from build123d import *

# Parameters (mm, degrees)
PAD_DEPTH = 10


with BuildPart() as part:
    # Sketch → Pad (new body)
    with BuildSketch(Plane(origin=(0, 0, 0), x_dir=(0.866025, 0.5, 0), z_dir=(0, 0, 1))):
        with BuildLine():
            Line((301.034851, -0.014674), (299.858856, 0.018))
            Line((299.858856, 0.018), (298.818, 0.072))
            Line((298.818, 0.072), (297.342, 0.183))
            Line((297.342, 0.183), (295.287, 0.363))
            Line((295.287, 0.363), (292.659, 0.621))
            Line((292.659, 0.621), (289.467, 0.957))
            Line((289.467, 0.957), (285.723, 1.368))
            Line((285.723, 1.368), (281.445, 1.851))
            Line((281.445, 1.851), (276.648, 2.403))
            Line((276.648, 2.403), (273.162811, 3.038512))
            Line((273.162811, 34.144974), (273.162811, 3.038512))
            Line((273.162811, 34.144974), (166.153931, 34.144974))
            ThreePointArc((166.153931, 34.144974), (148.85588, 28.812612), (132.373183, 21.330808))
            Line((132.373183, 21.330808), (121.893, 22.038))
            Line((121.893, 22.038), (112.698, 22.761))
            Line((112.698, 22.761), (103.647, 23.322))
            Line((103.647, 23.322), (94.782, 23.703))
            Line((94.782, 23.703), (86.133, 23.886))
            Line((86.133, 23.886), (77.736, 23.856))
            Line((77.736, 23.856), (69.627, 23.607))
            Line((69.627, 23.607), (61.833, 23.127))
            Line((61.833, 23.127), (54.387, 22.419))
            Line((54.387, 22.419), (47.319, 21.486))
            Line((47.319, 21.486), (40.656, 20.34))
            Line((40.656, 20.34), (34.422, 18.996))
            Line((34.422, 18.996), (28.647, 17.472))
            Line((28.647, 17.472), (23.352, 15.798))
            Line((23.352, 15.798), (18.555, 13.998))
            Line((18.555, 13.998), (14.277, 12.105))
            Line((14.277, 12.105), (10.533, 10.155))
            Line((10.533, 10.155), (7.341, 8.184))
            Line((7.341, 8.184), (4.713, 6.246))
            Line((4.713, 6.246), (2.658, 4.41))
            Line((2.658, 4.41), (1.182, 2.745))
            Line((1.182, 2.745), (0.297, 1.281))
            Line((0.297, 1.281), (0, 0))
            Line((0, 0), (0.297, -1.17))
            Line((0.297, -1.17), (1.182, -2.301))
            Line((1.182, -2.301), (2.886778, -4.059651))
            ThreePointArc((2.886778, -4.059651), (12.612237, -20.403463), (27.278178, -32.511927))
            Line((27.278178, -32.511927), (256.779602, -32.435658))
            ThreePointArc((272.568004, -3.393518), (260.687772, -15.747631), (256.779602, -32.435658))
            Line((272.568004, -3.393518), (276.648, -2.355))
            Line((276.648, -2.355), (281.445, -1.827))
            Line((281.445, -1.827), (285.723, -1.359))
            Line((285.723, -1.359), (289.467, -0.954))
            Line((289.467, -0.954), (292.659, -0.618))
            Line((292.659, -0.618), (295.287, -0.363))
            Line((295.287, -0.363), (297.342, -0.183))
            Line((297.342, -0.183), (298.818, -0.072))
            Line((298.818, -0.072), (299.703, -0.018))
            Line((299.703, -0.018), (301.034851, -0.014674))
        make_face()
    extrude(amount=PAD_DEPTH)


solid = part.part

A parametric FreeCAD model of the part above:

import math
import FreeCAD as App
import Part
import Sketcher
from FreeCAD import Vector
Q = App.Units.Quantity

doc = App.newDocument("Part")
body = doc.addObject("PartDesign::Body", "Body")

# Sketch on XY plane
sketch1 = body.newObject("Sketcher::SketchObject", "Sketch")
sketch1.AttachmentSupport = (doc.getObject("XY_Plane"), [""])
sketch1.MapMode = "FlatFace"
sketch1.addGeometry(Part.LineSegment(Vector(260.7, 150.5, 0), Vector(259.7, 149.9, 0)), False)
sketch1.addGeometry(Part.LineSegment(Vector(259.7, 149.9, 0), Vector(258.7, 149.5, 0)), False)
sketch1.addGeometry(Part.LineSegment(Vector(258.7, 149.5, 0), Vector(257.4, 148.8, 0)), False)
sketch1.addGeometry(Part.LineSegment(Vector(257.4, 148.8, 0), Vector(255.5, 148, 0)), False)
sketch1.addGeometry(Part.LineSegment(Vector(255.5, 148, 0), Vector(253.1, 146.9, 0)), False)
sketch1.addGeometry(Part.LineSegment(Vector(253.1, 146.9, 0), Vector(250.2, 145.6, 0)), False)
sketch1.addGeometry(Part.LineSegment(Vector(250.2, 145.6, 0), Vector(246.8, 144, 0)), False)
sketch1.addGeometry(Part.LineSegment(Vector(246.8, 144, 0), Vector(242.8, 142.3, 0)), False)
sketch1.addGeometry(Part.LineSegment(Vector(242.8, 142.3, 0), Vector(238.4, 140.4, 0)), False)
sketch1.addGeometry(Part.LineSegment(Vector(238.4, 140.4, 0), Vector(235, 139.2, 0)), False)
sketch1.addGeometry(Part.LineSegment(Vector(235, 139.2, 0), Vector(219.5, 166.2, 0)), False)
sketch1.addGeometry(Part.LineSegment(Vector(219.5, 166.2, 0), Vector(126.8, 112.6, 0)), False)
sketch1.addGeometry(Part.ArcOfCircle(Part.Circle(Vector(224.9, 9.2, 0), Vector(0, 0, 1), 142.5), math.radians(133.49), math.radians(148.05)), False)
sketch1.addGeometry(Part.LineSegment(Vector(104, 84.7, 0), Vector(94.5, 80, 0)), False)
sketch1.addGeometry(Part.LineSegment(Vector(94.5, 80, 0), Vector(86.2, 76.1, 0)), False)
sketch1.addGeometry(Part.LineSegment(Vector(86.2, 76.1, 0), Vector(78.1, 72, 0)), False)
sketch1.addGeometry(Part.LineSegment(Vector(78.1, 72, 0), Vector(70.2, 67.9, 0)), False)
sketch1.addGeometry(Part.LineSegment(Vector(70.2, 67.9, 0), Vector(62.7, 63.8, 0)), False)
sketch1.addGeometry(Part.LineSegment(Vector(62.7, 63.8, 0), Vector(55.4, 59.5, 0)), False)
sketch1.addGeometry(Part.LineSegment(Vector(55.4, 59.5, 0), Vector(48.5, 55.3, 0)), False)
sketch1.addGeometry(Part.LineSegment(Vector(48.5, 55.3, 0), Vector(42, 50.9, 0)), False)
sketch1.addGeometry(Part.LineSegment(Vector(42, 50.9, 0), Vector(35.9, 46.6, 0)), False)
sketch1.addGeometry(Part.LineSegment(Vector(35.9, 46.6, 0), Vector(30.2, 42.3, 0)), False)
sketch1.addGeometry(Part.LineSegment(Vector(30.2, 42.3, 0), Vector(25, 37.9, 0)), False)
sketch1.addGeometry(Part.LineSegment(Vector(25, 37.9, 0), Vector(20.3, 33.7, 0)), False)
sketch1.addGeometry(Part.LineSegment(Vector(20.3, 33.7, 0), Vector(16.1, 29.5, 0)), False)
sketch1.addGeometry(Part.LineSegment(Vector(16.1, 29.5, 0), Vector(12.3, 25.4, 0)), False)
sketch1.addGeometry(Part.LineSegment(Vector(12.3, 25.4, 0), Vector(9.1, 21.4, 0)), False)
sketch1.addGeometry(Part.LineSegment(Vector(9.1, 21.4, 0), Vector(6.3, 17.6, 0)), False)
sketch1.addGeometry(Part.LineSegment(Vector(6.3, 17.6, 0), Vector(4, 14.1, 0)), False)
sketch1.addGeometry(Part.LineSegment(Vector(4, 14.1, 0), Vector(2.3, 10.8, 0)), False)
sketch1.addGeometry(Part.LineSegment(Vector(2.3, 10.8, 0), Vector(1, 7.8, 0)), False)
sketch1.addGeometry(Part.LineSegment(Vector(1, 7.8, 0), Vector(0.1, 5.1, 0)), False)
sketch1.addGeometry(Part.LineSegment(Vector(0.1, 5.1, 0), Vector(-0.3, 3, 0)), False)
sketch1.addGeometry(Part.LineSegment(Vector(-0.3, 3, 0), Vector(-0.4, 1.3, 0)), False)
sketch1.addGeometry(Part.LineSegment(Vector(-0.4, 1.3, 0), Vector(0, 0, 0)), False)
sketch1.addGeometry(Part.LineSegment(Vector(0, 0, 0), Vector(0.8, -0.9, 0)), False)
sketch1.addGeometry(Part.LineSegment(Vector(0.8, -0.9, 0), Vector(2.2, -1.4, 0)), False)
sketch1.addGeometry(Part.LineSegment(Vector(2.2, -1.4, 0), Vector(4.5, -2.1, 0)), False)
sketch1.addGeometry(Part.ArcOfCircle(Part.Circle(Vector(39.6, 41.1, 0), Vector(0, 0, 1), 55.6), math.radians(-129), math.radians(-90)), False)
sketch1.addGeometry(Part.LineSegment(Vector(39.9, -14.5, 0), Vector(238.6, 100.3, 0)), False)
sketch1.addGeometry(Part.ArcOfCircle(Part.Circle(Vector(266, 117.5, 0), Vector(0, 0, 1), 32.4), math.radians(151), math.radians(212)), False)
sketch1.addGeometry(Part.LineSegment(Vector(237.7, 133.3, 0), Vector(240.8, 136.3, 0)), False)
sketch1.addGeometry(Part.LineSegment(Vector(240.8, 136.3, 0), Vector(244.7, 139.1, 0)), False)
sketch1.addGeometry(Part.LineSegment(Vector(244.7, 139.1, 0), Vector(248.1, 141.7, 0)), False)
sketch1.addGeometry(Part.LineSegment(Vector(248.1, 141.7, 0), Vector(251.2, 143.9, 0)), False)
sketch1.addGeometry(Part.LineSegment(Vector(251.2, 143.9, 0), Vector(253.8, 145.8, 0)), False)
sketch1.addGeometry(Part.LineSegment(Vector(253.8, 145.8, 0), Vector(255.9, 147.3, 0)), False)
sketch1.addGeometry(Part.LineSegment(Vector(255.9, 147.3, 0), Vector(257.6, 148.5, 0)), False)
sketch1.addGeometry(Part.LineSegment(Vector(257.6, 148.5, 0), Vector(258.8, 149.3, 0)), False)
sketch1.addGeometry(Part.LineSegment(Vector(258.8, 149.3, 0), Vector(259.6, 149.8, 0)), False)
sketch1.addGeometry(Part.LineSegment(Vector(259.6, 149.8, 0), Vector(260.7, 150.5, 0)), False)
sketch1.addConstraint(Sketcher.Constraint("Coincident", 0, 2, 1, 1))
sketch1.addConstraint(Sketcher.Constraint("Coincident", 1, 2, 2, 1))
sketch1.addConstraint(Sketcher.Constraint("Coincident", 2, 2, 3, 1))
sketch1.addConstraint(Sketcher.Constraint("Coincident", 3, 2, 4, 1))
sketch1.addConstraint(Sketcher.Constraint("Coincident", 4, 2, 5, 1))
sketch1.addConstraint(Sketcher.Constraint("Coincident", 5, 2, 6, 1))
sketch1.addConstraint(Sketcher.Constraint("Coincident", 6, 2, 7, 1))
sketch1.addConstraint(Sketcher.Constraint("Coincident", 7, 2, 8, 1))
sketch1.addConstraint(Sketcher.Constraint("Coincident", 8, 2, 9, 1))
sketch1.addConstraint(Sketcher.Constraint("Coincident", 9, 2, 10, 1))
sketch1.addConstraint(Sketcher.Constraint("Coincident", 10, 2, 11, 1))
sketch1.addConstraint(Sketcher.Constraint("Coincident", 11, 2, 12, 1))
sketch1.addConstraint(Sketcher.Constraint("Coincident", 12, 2, 13, 1))
sketch1.addConstraint(Sketcher.Constraint("Coincident", 13, 2, 14, 1))
sketch1.addConstraint(Sketcher.Constraint("Coincident", 14, 2, 15, 1))
sketch1.addConstraint(Sketcher.Constraint("Coincident", 15, 2, 16, 1))
sketch1.addConstraint(Sketcher.Constraint("Coincident", 16, 2, 17, 1))
sketch1.addConstraint(Sketcher.Constraint("Coincident", 17, 2, 18, 1))
sketch1.addConstraint(Sketcher.Constraint("Coincident", 18, 2, 19, 1))
sketch1.addConstraint(Sketcher.Constraint("Coincident", 19, 2, 20, 1))
sketch1.addConstraint(Sketcher.Constraint("Coincident", 20, 2, 21, 1))
sketch1.addConstraint(Sketcher.Constraint("Coincident", 21, 2, 22, 1))
sketch1.addConstraint(Sketcher.Constraint("Coincident", 22, 2, 23, 1))
sketch1.addConstraint(Sketcher.Constraint("Coincident", 23, 2, 24, 1))
sketch1.addConstraint(Sketcher.Constraint("Coincident", 24, 2, 25, 1))
sketch1.addConstraint(Sketcher.Constraint("Coincident", 25, 2, 26, 1))
sketch1.addConstraint(Sketcher.Constraint("Coincident", 26, 2, 27, 1))
sketch1.addConstraint(Sketcher.Constraint("Coincident", 27, 2, 28, 1))
sketch1.addConstraint(Sketcher.Constraint("Coincident", 28, 2, 29, 1))
sketch1.addConstraint(Sketcher.Constraint("Coincident", 29, 2, 30, 1))
sketch1.addConstraint(Sketcher.Constraint("Coincident", 30, 2, 31, 1))
sketch1.addConstraint(Sketcher.Constraint("Coincident", 31, 2, 32, 1))
sketch1.addConstraint(Sketcher.Constraint("Coincident", 32, 2, 33, 1))
sketch1.addConstraint(Sketcher.Constraint("Coincident", 33, 2, 34, 1))
sketch1.addConstraint(Sketcher.Constraint("Coincident", 34, 2, 35, 1))
sketch1.addConstraint(Sketcher.Constraint("Coincident", 35, 2, 36, 1))
sketch1.addConstraint(Sketcher.Constraint("Coincident", 36, 2, 37, 1))
sketch1.addConstraint(Sketcher.Constraint("Coincident", 37, 2, 38, 1))
sketch1.addConstraint(Sketcher.Constraint("Coincident", 38, 2, 39, 1))
sketch1.addConstraint(Sketcher.Constraint("Coincident", 39, 2, 40, 1))
sketch1.addConstraint(Sketcher.Constraint("Coincident", 40, 2, 41, 2))
sketch1.addConstraint(Sketcher.Constraint("Coincident", 41, 1, 42, 1))
sketch1.addConstraint(Sketcher.Constraint("Coincident", 42, 2, 43, 1))
sketch1.addConstraint(Sketcher.Constraint("Coincident", 43, 2, 44, 1))
sketch1.addConstraint(Sketcher.Constraint("Coincident", 44, 2, 45, 1))
sketch1.addConstraint(Sketcher.Constraint("Coincident", 45, 2, 46, 1))
sketch1.addConstraint(Sketcher.Constraint("Coincident", 46, 2, 47, 1))
sketch1.addConstraint(Sketcher.Constraint("Coincident", 47, 2, 48, 1))
sketch1.addConstraint(Sketcher.Constraint("Coincident", 48, 2, 49, 1))
sketch1.addConstraint(Sketcher.Constraint("Coincident", 49, 2, 50, 1))
sketch1.addConstraint(Sketcher.Constraint("Coincident", 50, 2, 51, 1))
sketch1.addConstraint(Sketcher.Constraint("Coincident", 51, 2, 0, 1))
sketch1.addConstraint(Sketcher.Constraint("Coincident", 35, 2, -1, 1))
sketch1.addConstraint(Sketcher.Constraint("Perpendicular", 10, 11))
sketch1.addConstraint(Sketcher.Constraint("Equal", 5, 46))
sketch1.addConstraint(Sketcher.Constraint("Equal", 3, 48))
sketch1.addConstraint(Sketcher.Constraint("Equal", 2, 49))
sketch1.addConstraint(Sketcher.Constraint("Angle", 10, Q("120.000012 deg")))
sketch1.addConstraint(Sketcher.Constraint("Radius", 39, 55.583418))
sketch1.addConstraint(Sketcher.Constraint("Radius", 12, 142.528103))
sketch1.addConstraint(Sketcher.Constraint("Radius", 41, 32.374435))
sketch1.addConstraint(Sketcher.Constraint("DistanceX", 33, 2, 37, 2, 2.523001))
sketch1.addConstraint(Sketcher.Constraint("DistanceX", 8, 2, 42, 2, 2.379001))
sketch1.addConstraint(Sketcher.Constraint("DistanceX", 7, 2, 43, 2, 1.839001))
sketch1.addConstraint(Sketcher.Constraint("DistanceX", 3, 2, 47, 2, 0.363))
sketch1.addConstraint(Sketcher.Constraint("DistanceX", 2, 2, 48, 2, 0.183))
sketch1.addConstraint(Sketcher.Constraint("DistanceX", 1, 2, 49, 2, 0.072))
sketch1.addConstraint(Sketcher.Constraint("Distance", 37, 1.436101))
sketch1.addConstraint(Sketcher.Constraint("DistanceX", -1, 1, 4, 2, 253.139599))
sketch1.addConstraint(Sketcher.Constraint("DistanceY", -1, 1, 25, 2, 29.454699))
sketch1.addConstraint(Sketcher.Constraint("DistanceX", -1, 1, 46, 2, 253.759099))
sketch1.addConstraint(Sketcher.Constraint("DistanceY", -1, 1, 49, 2, 149.346698))
sketch1.addConstraint(Sketcher.Constraint("DistanceX", 12, 3, 3, 2, 30.628299))
sketch1.addConstraint(Sketcher.Constraint("DistanceX", 6, 2, 5, 2, 3.447899))
sketch1.addConstraint(Sketcher.Constraint("DistanceX", 6, 2, 1, 2, 11.988602))
sketch1.addConstraint(Sketcher.Constraint("DistanceY", 11, 2, 8, 2, 27.757701))
sketch1.addConstraint(Sketcher.Constraint("DistanceX", 13, 2, 12, 2, 9.4297))
sketch1.addConstraint(Sketcher.Constraint("DistanceX", 14, 2, 11, 2, 40.6022))
sketch1.addConstraint(Sketcher.Constraint("DistanceX", 14, 2, 12, 3, 138.697399))
sketch1.addConstraint(Sketcher.Constraint("DistanceY", 18, 2, 16, 2, 8.390501))
sketch1.addConstraint(Sketcher.Constraint("DistanceX", 39, 3, 18, 2, 15.811599))
sketch1.addConstraint(Sketcher.Constraint("DistanceX", 19, 2, 18, 2, 6.898099))
sketch1.addConstraint(Sketcher.Constraint("DistanceX", 20, 2, 19, 2, 6.509801))
sketch1.addConstraint(Sketcher.Constraint("DistanceY", 23, 2, 39, 3, 3.122601))
sketch1.addConstraint(Sketcher.Constraint("DistanceX", 24, 2, 23, 2, 4.726802))
sketch1.addConstraint(Sketcher.Constraint("DistanceX", 26, 2, 24, 2, 7.9879))
sketch1.addConstraint(Sketcher.Constraint("DistanceX", 29, 2, 28, 2, 2.267398))
sketch1.addConstraint(Sketcher.Constraint("DistanceX", 33, 2, 29, 2, 4.393201))
sketch1.addConstraint(Sketcher.Constraint("DistanceY", 33, 2, 28, 2, 14.653499))
sketch1.addConstraint(Sketcher.Constraint("DistanceX", 34, 2, 36, 2, 1.2255))
sketch1.addConstraint(Sketcher.Constraint("DistanceX", 8, 2, 40, 2, 0.2128))
sketch1.addConstraint(Sketcher.Constraint("DistanceX", 9, 2, 41, 1, 2.700898))
sketch1.addConstraint(Sketcher.Constraint("DistanceX", 41, 1, 6, 2, 9.0118))
sketch1.addConstraint(Sketcher.Constraint("DistanceX", 6, 2, 44, 2, 1.3635))
sketch1.addConstraint(Sketcher.Constraint("DistanceY", 43, 2, 44, 2, 2.544301))
sketch1.addConstraint(Sketcher.Constraint("DistanceX", 5, 2, 45, 2, 0.9555))
sketch1.addConstraint(Sketcher.Constraint("DistanceY", 48, 2, 0, 2, 1.4325))
sketch1.addConstraint(Sketcher.Constraint("DistanceY", 0, 2, 51, 2, 0.559701))
sketch1.addConstraint(Sketcher.Constraint("Distance", 0, 1.176449))
sketch1.addConstraint(Sketcher.Constraint("Distance", 3, 2.062868))
sketch1.addConstraint(Sketcher.Constraint("Distance", 6, 3.766491))
sketch1.addConstraint(Sketcher.Constraint("Distance", 7, 4.30518))
sketch1.addConstraint(Sketcher.Constraint("Distance", 11, 107.00888))
sketch1.addConstraint(Sketcher.Constraint("Distance", 14, 9.223381))
sketch1.addConstraint(Sketcher.Constraint("Distance", 15, 9.068369))
sketch1.addConstraint(Sketcher.Constraint("Distance", 29, 4.221378))
sketch1.addConstraint(Sketcher.Constraint("Distance", 33, 2.22504))
sketch1.addConstraint(Sketcher.Constraint("Distance", 35, 1.314979))
sketch1.addConstraint(Sketcher.Constraint("Distance", 38, 2.44931))
sketch1.addConstraint(Sketcher.Constraint("Distance", 43, 4.825971))
sketch1.addConstraint(Sketcher.Constraint("Distance", 45, 3.765841))
sketch1.addConstraint(Sketcher.Constraint("DistanceY", -1, 1, 12, 3, 9.247252))
sketch1.addConstraint(Sketcher.Constraint("DistanceX", -1, 1, 39, 3, 39.58174))
sketch1.addConstraint(Sketcher.Constraint("DistanceY", -1, 1, 0, 2, 149.945069))
sketch1.addConstraint(Sketcher.Constraint("DistanceX", -1, 1, 1, 2, 258.747949))
sketch1.addConstraint(Sketcher.Constraint("DistanceY", -1, 1, 3, 2, 147.957919))
sketch1.addConstraint(Sketcher.Constraint("DistanceX", -1, 1, 7, 2, 242.812991))
sketch1.addConstraint(Sketcher.Constraint("DistanceY", -1, 1, 9, 2, 139.212882))
sketch1.addConstraint(Sketcher.Constraint("DistanceX", -1, 1, 12, 2, 103.973118))
sketch1.addConstraint(Sketcher.Constraint("DistanceY", -1, 1, 14, 2, 76.060622))
sketch1.addConstraint(Sketcher.Constraint("DistanceX", -1, 1, 15, 2, 78.09992))
sketch1.addConstraint(Sketcher.Constraint("DistanceY", -1, 1, 19, 2, 55.257772))
sketch1.addConstraint(Sketcher.Constraint("DistanceY", -1, 1, 20, 2, 50.945078))
sketch1.addConstraint(Sketcher.Constraint("DistanceY", -1, 1, 21, 2, 46.608931))
sketch1.addConstraint(Sketcher.Constraint("DistanceX", -1, 1, 23, 2, 25.039121))
sketch1.addConstraint(Sketcher.Constraint("DistanceY", -1, 1, 23, 2, 37.942962))
sketch1.addConstraint(Sketcher.Constraint("DistanceY", -1, 1, 26, 2, 25.357472))
sketch1.addConstraint(Sketcher.Constraint("DistanceX", -1, 1, 28, 2, 6.311741))
sketch1.addConstraint(Sketcher.Constraint("DistanceY", -1, 1, 28, 2, 17.621739))
sketch1.addConstraint(Sketcher.Constraint("DistanceX", -1, 1, 30, 2, 2.26549))
sketch1.addConstraint(Sketcher.Constraint("DistanceX", 34, 2, -1, 1, 0.383291))
sketch1.addConstraint(Sketcher.Constraint("DistanceY", 36, 2, -1, 1, 0.86475))
sketch1.addConstraint(Sketcher.Constraint("DistanceX", -1, 1, 39, 2, 39.879562))
sketch1.addConstraint(Sketcher.Constraint("DistanceX", -1, 1, 42, 2, 240.761668))
sketch1.addConstraint(Sketcher.Constraint("DistanceY", -1, 1, 42, 2, 136.284559))
sketch1.addConstraint(Sketcher.Constraint("DistanceX", -1, 1, 50, 2, 259.559381))
sketch1.addConstraint(Sketcher.Constraint("DistanceY", 12, 3, 41, 3, 108.289262))
sketch1.addConstraint(Sketcher.Constraint("DistanceX", 0, 2, 41, 3, 6.323451))
sketch1.addConstraint(Sketcher.Constraint("DistanceX", 12, 3, 0, 2, 34.760142))
sketch1.addConstraint(Sketcher.Constraint("DistanceY", 2, 2, 1, 2, 0.641871))
sketch1.addConstraint(Sketcher.Constraint("DistanceY", 4, 2, 2, 2, 1.962182))
sketch1.addConstraint(Sketcher.Constraint("DistanceY", 5, 2, 3, 2, 2.395582))
sketch1.addConstraint(Sketcher.Constraint("DistanceX", 16, 2, 14, 2, 15.986709))
sketch1.addConstraint(Sketcher.Constraint("DistanceY", 16, 2, 12, 2, 16.74122))
sketch1.addConstraint(Sketcher.Constraint("DistanceY", 17, 2, 16, 2, 4.166019))
sketch1.addConstraint(Sketcher.Constraint("DistanceX", 21, 2, 17, 2, 26.759339))
sketch1.addConstraint(Sketcher.Constraint("DistanceX", 22, 2, 20, 2, 11.748991))
sketch1.addConstraint(Sketcher.Constraint("DistanceY", 22, 2, 20, 2, 8.67815))
sketch1.addConstraint(Sketcher.Constraint("DistanceY", 24, 2, 23, 2, 4.280939))
sketch1.addConstraint(Sketcher.Constraint("DistanceX", 25, 2, 21, 2, 19.81799))
sketch1.addConstraint(Sketcher.Constraint("DistanceX", 27, 2, 22, 2, 21.166351))
sketch1.addConstraint(Sketcher.Constraint("DistanceX", 29, 2, 25, 2, 12.028681))
sketch1.addConstraint(Sketcher.Constraint("DistanceY", 30, 2, 26, 2, 14.599419))
sketch1.addConstraint(Sketcher.Constraint("DistanceX", 31, 2, 27, 2, 8.111521))
sketch1.addConstraint(Sketcher.Constraint("DistanceY", 31, 2, 27, 2, 13.634431))
sketch1.addConstraint(Sketcher.Constraint("DistanceX", 32, 2, 31, 2, 0.861682))
sketch1.addConstraint(Sketcher.Constraint("DistanceY", 2, 2, 50, 2, 1.006429))
sketch1.addConstraint(Sketcher.Constraint("Distance", 27, 5.123593))
pad1 = body.newObject("PartDesign::Pad", "Pad")
pad1.Profile = sketch1
pad1.Length = 10

doc.recompute()
